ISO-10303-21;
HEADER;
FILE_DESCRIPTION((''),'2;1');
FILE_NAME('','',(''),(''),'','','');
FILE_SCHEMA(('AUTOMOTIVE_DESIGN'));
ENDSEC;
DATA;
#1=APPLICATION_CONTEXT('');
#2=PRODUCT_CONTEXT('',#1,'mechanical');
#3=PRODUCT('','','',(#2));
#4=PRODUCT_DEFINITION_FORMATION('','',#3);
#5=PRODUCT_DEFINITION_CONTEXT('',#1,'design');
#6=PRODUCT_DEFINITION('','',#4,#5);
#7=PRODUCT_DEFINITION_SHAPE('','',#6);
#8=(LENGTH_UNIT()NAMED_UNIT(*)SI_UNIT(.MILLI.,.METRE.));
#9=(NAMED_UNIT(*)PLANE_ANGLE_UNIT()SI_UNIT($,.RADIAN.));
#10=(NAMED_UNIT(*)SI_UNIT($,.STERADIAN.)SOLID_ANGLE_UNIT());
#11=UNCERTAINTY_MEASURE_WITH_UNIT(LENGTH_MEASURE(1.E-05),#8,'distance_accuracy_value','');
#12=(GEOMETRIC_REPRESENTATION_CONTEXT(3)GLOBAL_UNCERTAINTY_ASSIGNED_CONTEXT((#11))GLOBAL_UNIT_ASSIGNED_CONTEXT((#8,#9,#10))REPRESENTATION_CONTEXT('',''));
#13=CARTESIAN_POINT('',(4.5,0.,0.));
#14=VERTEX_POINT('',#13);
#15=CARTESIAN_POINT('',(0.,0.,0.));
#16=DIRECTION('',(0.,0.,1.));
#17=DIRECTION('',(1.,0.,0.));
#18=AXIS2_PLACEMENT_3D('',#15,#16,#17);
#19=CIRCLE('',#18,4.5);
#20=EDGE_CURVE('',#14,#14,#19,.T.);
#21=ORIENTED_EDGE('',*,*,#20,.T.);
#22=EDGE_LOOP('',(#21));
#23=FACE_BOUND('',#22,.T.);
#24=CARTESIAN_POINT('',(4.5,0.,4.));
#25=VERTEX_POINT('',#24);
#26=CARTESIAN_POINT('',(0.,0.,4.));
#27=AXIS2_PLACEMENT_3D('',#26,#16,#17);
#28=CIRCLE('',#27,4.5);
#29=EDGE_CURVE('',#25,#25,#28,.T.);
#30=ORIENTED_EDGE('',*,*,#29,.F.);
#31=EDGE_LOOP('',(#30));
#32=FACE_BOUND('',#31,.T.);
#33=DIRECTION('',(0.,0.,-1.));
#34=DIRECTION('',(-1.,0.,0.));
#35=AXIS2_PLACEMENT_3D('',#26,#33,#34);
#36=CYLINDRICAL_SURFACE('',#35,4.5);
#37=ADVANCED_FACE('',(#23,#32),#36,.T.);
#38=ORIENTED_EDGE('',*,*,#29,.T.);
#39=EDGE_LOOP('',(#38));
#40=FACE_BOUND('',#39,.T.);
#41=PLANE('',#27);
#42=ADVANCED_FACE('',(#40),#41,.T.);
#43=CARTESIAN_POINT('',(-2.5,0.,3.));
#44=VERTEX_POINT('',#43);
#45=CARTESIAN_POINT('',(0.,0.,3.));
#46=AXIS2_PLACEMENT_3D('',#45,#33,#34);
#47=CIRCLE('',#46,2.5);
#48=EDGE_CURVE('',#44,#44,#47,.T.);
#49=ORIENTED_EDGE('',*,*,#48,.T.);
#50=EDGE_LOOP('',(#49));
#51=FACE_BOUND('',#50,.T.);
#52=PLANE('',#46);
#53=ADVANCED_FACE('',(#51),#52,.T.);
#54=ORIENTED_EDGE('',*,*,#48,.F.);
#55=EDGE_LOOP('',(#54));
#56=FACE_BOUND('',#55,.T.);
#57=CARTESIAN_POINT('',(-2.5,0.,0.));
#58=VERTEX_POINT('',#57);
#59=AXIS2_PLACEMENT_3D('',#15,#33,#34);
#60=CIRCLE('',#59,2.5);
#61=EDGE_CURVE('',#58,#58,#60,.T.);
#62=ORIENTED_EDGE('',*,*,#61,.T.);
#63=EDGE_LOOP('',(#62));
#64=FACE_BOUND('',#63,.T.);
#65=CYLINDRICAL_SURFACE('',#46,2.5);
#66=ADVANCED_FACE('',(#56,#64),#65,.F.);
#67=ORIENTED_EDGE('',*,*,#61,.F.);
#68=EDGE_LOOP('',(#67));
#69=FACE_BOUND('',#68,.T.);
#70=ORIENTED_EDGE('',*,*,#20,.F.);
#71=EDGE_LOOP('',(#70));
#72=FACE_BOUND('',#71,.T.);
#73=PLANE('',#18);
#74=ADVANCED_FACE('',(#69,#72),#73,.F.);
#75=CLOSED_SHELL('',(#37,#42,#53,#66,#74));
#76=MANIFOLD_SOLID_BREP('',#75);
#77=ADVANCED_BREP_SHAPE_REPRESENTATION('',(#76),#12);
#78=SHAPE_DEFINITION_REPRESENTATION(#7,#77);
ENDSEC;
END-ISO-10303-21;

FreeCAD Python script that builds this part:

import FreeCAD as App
import Part
import Sketcher
from FreeCAD import Vector
Q = App.Units.Quantity

doc = App.newDocument("Part")
params = doc.addObject("Spreadsheet::Sheet", "Params")
for row, (alias, value) in enumerate([
    ("sketch1_diameter", "9 mm"),
    ("pad1_length", "4 mm"),
    ("sketch2_diameter", "5 mm"),
    ("pocket1_length", "3 mm"),
], start=1):
    params.set(f"A{row}", alias)
    params.set(f"B{row}", "=" + value)
    params.setAlias(f"B{row}", alias)

body = doc.addObject("PartDesign::Body", "Body")

sketch1 = body.newObject("Sketcher::SketchObject", "Sketch")
sketch1.AttachmentSupport = (doc.getObject("XY_Plane"), [""])
sketch1.MapMode = "FlatFace"
sketch1.addGeometry(Part.Circle(Vector(0, 0, 0), Vector(0, 0, 1), 4.5), False)
sketch1.addConstraint(Sketcher.Constraint("Coincident", 0, 3, -1, 1))
sketch1.addConstraint(Sketcher.Constraint("Diameter", 0, Q("9 mm")))
sketch1.setExpression("Constraints[1]", "Params.sketch1_diameter")
pad1 = body.newObject("PartDesign::Pad", "Pad")
pad1.Profile = sketch1
pad1.setExpression("Length", "Params.pad1_length")

sketch2 = body.newObject("Sketcher::SketchObject", "Sketch001")
sketch2.AttachmentSupport = (doc.getObject("XY_Plane"), [""])
sketch2.MapMode = "FlatFace"
sketch2.addGeometry(Part.Circle(Vector(0, 0, 0), Vector(0, 0, 1), 2.5), False)
sketch2.addConstraint(Sketcher.Constraint("Coincident", 0, 3, -1, 1))
sketch2.addConstraint(Sketcher.Constraint("Diameter", 0, Q("5 mm")))
sketch2.setExpression("Constraints[1]", "Params.sketch2_diameter")
pocket1 = body.newObject("PartDesign::Pocket", "Pocket")
pocket1.Profile = sketch2
pocket1.setExpression("Length", "Params.pocket1_length")
pocket1.Reversed = True

doc.recompute()
